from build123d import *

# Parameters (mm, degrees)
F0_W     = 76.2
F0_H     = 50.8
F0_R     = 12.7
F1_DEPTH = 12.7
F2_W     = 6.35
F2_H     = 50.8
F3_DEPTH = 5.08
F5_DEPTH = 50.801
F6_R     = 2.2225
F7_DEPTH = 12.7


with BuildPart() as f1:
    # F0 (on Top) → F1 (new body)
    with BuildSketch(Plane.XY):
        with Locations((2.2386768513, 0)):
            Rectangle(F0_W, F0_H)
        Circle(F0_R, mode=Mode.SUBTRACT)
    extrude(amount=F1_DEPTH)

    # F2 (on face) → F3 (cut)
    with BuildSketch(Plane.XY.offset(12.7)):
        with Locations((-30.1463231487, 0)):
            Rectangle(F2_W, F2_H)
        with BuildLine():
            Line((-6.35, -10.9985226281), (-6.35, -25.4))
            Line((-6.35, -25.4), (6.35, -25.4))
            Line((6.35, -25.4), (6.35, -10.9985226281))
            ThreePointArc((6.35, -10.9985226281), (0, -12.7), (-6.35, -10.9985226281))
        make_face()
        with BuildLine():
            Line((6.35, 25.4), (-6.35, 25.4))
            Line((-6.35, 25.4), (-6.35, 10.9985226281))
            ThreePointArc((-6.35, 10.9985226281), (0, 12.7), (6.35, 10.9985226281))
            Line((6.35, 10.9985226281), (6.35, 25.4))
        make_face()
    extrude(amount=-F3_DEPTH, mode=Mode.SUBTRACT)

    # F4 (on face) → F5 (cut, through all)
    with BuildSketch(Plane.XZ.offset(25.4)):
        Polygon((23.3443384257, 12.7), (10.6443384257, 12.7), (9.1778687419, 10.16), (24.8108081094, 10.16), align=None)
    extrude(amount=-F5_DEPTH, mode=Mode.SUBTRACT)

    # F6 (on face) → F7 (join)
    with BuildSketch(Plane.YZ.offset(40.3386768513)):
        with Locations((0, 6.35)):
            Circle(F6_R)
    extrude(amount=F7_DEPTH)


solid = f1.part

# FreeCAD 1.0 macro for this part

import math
import FreeCAD as App
import Part
import Sketcher
from FreeCAD import Vector
Q = App.Units.Quantity

doc = App.newDocument("Part")
body = doc.addObject("PartDesign::Body", "Body")

# Sketch on XY plane
sketch1 = body.newObject("Sketcher::SketchObject", "Sketch")
sketch1.AttachmentSupport = (doc.getObject("XY_Plane"), [""])
sketch1.MapMode = "FlatFace"
sketch1.addGeometry([
    Part.LineSegment(Vector(-35.861323, 25.4, 0), Vector(-35.861323, -25.4, 0)),  # 0
    Part.LineSegment(Vector(-35.861323, -25.4, 0), Vector(40.338677, -25.4, 0)),  # 1
    Part.LineSegment(Vector(40.338677, -25.4, 0), Vector(40.338677, 25.4, 0)),  # 2
    Part.LineSegment(Vector(40.338677, 25.4, 0), Vector(-35.861323, 25.4, 0)),  # 3
    Part.Circle(Vector(0, 0, 0), Vector(0, 0, 1), 12.7),  # 4
], False)
sketch1.addConstraint([
    Sketcher.Constraint("Coincident", 0, 2, 1, 1),
    Sketcher.Constraint("Coincident", 1, 2, 2, 1),
    Sketcher.Constraint("Coincident", 2, 2, 3, 1),
    Sketcher.Constraint("Coincident", 3, 2, 0, 1),
    Sketcher.Constraint("Vertical", 0),
    Sketcher.Constraint("Horizontal", 1),
    Sketcher.Constraint("Vertical", 2),
    Sketcher.Constraint("Horizontal", 3),
    Sketcher.Constraint("Coincident", 4, 3, -1, 1),
    Sketcher.Constraint("Diameter", 4, Q("1 in")),
    Sketcher.Constraint("DistanceX", 1, 1, 1, 2, Q("3 in")),
    Sketcher.Constraint("DistanceY", 0, 2, 0, 1, Q("2 in")),
    Sketcher.Constraint("DistanceY", 0, 2, -1, 1, Q("1 in")),
    Sketcher.Constraint("DistanceX", 0, 2, -1, 1, Q("35.861323 mm")),
])
pad1 = body.newObject("PartDesign::Pad", "Pad")
pad1.Profile = sketch1
pad1.Length = Q("0.5 in")

# Sketch on XY plane
sketch2 = body.newObject("Sketcher::SketchObject", "Sketch001")
sketch2.AttachmentSupport = (doc.getObject("XY_Plane"), [""])
sketch2.MapMode = "FlatFace"
sketch2.AttachmentOffset = App.Placement(Vector(0, 0, 0.5 * 25.4), App.Rotation())
sketch2.addGeometry([
    Part.LineSegment(Vector(-33.321323, 25.4, 0), Vector(-33.321323, -25.4, 0)),  # 0
    Part.LineSegment(Vector(-33.321323, -25.4, 0), Vector(-26.971323, -25.4, 0)),  # 1
    Part.LineSegment(Vector(-26.971323, -25.4, 0), Vector(-26.971323, 25.4, 0)),  # 2
    Part.LineSegment(Vector(-26.971323, 25.4, 0), Vector(-33.321323, 25.4, 0)),  # 3
    Part.LineSegment(Vector(-6.35, -10.998523, 0), Vector(-6.35, -25.4, 0)),  # 4
    Part.LineSegment(Vector(-6.35, -25.4, 0), Vector(6.35, -25.4, 0)),  # 5
    Part.LineSegment(Vector(6.35, -25.4, 0), Vector(6.35, -10.998523, 0)),  # 6
    Part.ArcOfCircle(Part.Circle(Vector(0, 0, 0), Vector(0, 0, 1), 12.7), math.radians(-120), math.radians(-60)),  # 7
    Part.LineSegment(Vector(6.35, 25.4, 0), Vector(-6.35, 25.4, 0)),  # 8
    Part.LineSegment(Vector(-6.35, 25.4, 0), Vector(-6.35, 10.998523, 0)),  # 9
    Part.ArcOfCircle(Part.Circle(Vector(0, 0, 0), Vector(0, 0, 1), 12.7), math.radians(60), math.radians(120)),  # 10
    Part.LineSegment(Vector(6.35, 10.998523, 0), Vector(6.35, 25.4, 0)),  # 11
], False)
sketch2.addConstraint([
    Sketcher.Constraint("Coincident", 0, 2, 1, 1),
    Sketcher.Constraint("Coincident", 1, 2, 2, 1),
    Sketcher.Constraint("Coincident", 2, 2, 3, 1),
    Sketcher.Constraint("Coincident", 3, 2, 0, 1),
    Sketcher.Constraint("Coincident", 4, 2, 5, 1),
    Sketcher.Constraint("Coincident", 5, 2, 6, 1),
    Sketcher.Constraint("Coincident", 6, 2, 7, 2),
    Sketcher.Constraint("Coincident", 7, 1, 4, 1),
    Sketcher.Constraint("Coincident", 8, 2, 9, 1),
    Sketcher.Constraint("Coincident", 9, 2, 10, 2),
    Sketcher.Constraint("Coincident", 10, 1, 11, 1),
    Sketcher.Constraint("Coincident", 11, 2, 8, 1),
    Sketcher.Constraint("Vertical", 0),
    Sketcher.Constraint("Horizontal", 1),
    Sketcher.Constraint("Vertical", 2),
    Sketcher.Constraint("Horizontal", 3),
    Sketcher.Constraint("Vertical", 4),
    Sketcher.Constraint("Horizontal", 5),
    Sketcher.Constraint("Vertical", 6),
    Sketcher.Constraint("Horizontal", 8),
    Sketcher.Constraint("Vertical", 9),
    Sketcher.Constraint("Vertical", 11),
    Sketcher.Constraint("Coincident", 7, 3, -1, 1),
    Sketcher.Constraint("Coincident", 10, 3, -1, 1),
    Sketcher.Constraint("Equal", 7, 10),
    Sketcher.Constraint("Symmetric", 5, 2, 8, 2, -1, 1),
    Sketcher.Constraint("Horizontal", 1, 2, 4, 2),
    Sketcher.Constraint("Horizontal", 6, 2, 7, 1),
    Sketcher.Constraint("Horizontal", 3, 2, 8, 2),
    Sketcher.Constraint("Horizontal", 9, 2, 10, 1),
    Sketcher.Constraint("Radius", 7, Q("0.5 in")),
    Sketcher.Constraint("DistanceY", 0, 2, 0, 1, Q("2 in")),
    Sketcher.Constraint("DistanceX", 5, 1, 5, 2, Q("0.5 in")),
    Sketcher.Constraint("DistanceX", 1, 1, 1, 2, Q("0.25 in")),
    Sketcher.Constraint("DistanceX", 0, 2, -1, 1, Q("33.321323 mm")),
])
pocket1 = body.newObject("PartDesign::Pocket", "Pocket")
pocket1.Profile = sketch2
pocket1.Length = Q("0.2 in")

# Sketch on XZ plane
sketch3 = body.newObject("Sketcher::SketchObject", "Sketch002")
sketch3.AttachmentSupport = (doc.getObject("XZ_Plane"), [""])
sketch3.MapMode = "FlatFace"
sketch3.AttachmentOffset = App.Placement(Vector(0, 0, 1 * 25.4), App.Rotation())
sketch3.addGeometry([
    Part.LineSegment(Vector(23.344338, 12.7, 0), Vector(10.644338, 12.7, 0)),
    Part.LineSegment(Vector(10.644338, 12.7, 0), Vector(9.177869, 10.16, 0)),
    Part.LineSegment(Vector(9.177869, 10.16, 0), Vector(24.810808, 10.16, 0)),
    Part.LineSegment(Vector(24.810808, 10.16, 0), Vector(23.344338, 12.7, 0)),
], False)
sketch3.addConstraint([
    Sketcher.Constraint("Coincident", 0, 2, 1, 1),
    Sketcher.Constraint("Coincident", 1, 2, 2, 1),
    Sketcher.Constraint("Coincident", 2, 2, 3, 1),
    Sketcher.Constraint("Coincident", 3, 2, 0, 1),
    Sketcher.Constraint("Horizontal", 0),
    Sketcher.Constraint("Horizontal", 2),
    Sketcher.Constraint("Equal", 1, 3),
    Sketcher.Constraint("DistanceX", 0, 2, 0, 1, Q("0.5 in")),
    Sketcher.Constraint("Angle", 1, Q("-120 deg")),
    Sketcher.Constraint("DistanceY", -1, 1, 0, 2, Q("0.5 in")),
    Sketcher.Constraint("DistanceY", -1, 1, 1, 2, Q("0.4 in")),
    Sketcher.Constraint("DistanceX", -1, 1, 0, 2, Q("10.644338 mm")),
])
pocket2 = body.newObject("PartDesign::Pocket", "Pocket001")
pocket2.Profile = sketch3
pocket2.Type = "ThroughAll"

# Sketch on YZ plane
sketch4 = body.newObject("Sketcher::SketchObject", "Sketch003")
sketch4.AttachmentSupport = (doc.getObject("YZ_Plane"), [""])
sketch4.MapMode = "FlatFace"
sketch4.AttachmentOffset = App.Placement(Vector(0, 0, 40.338677), App.Rotation())
sketch4.addGeometry(Part.Circle(Vector(0, 6.35, 0), Vector(0, 0, 1), 2.2225), False)
sketch4.addConstraint([
    Sketcher.Constraint("PointOnObject", 0, 3, -2),
    Sketcher.Constraint("Diameter", 0, Q("0.175 in")),
    Sketcher.Constraint("DistanceY", -1, 1, 0, 3, Q("0.25 in")),
])
pad2 = body.newObject("PartDesign::Pad", "Pad001")
pad2.Profile = sketch4
pad2.Length = Q("0.5 in")

doc.recompute()
